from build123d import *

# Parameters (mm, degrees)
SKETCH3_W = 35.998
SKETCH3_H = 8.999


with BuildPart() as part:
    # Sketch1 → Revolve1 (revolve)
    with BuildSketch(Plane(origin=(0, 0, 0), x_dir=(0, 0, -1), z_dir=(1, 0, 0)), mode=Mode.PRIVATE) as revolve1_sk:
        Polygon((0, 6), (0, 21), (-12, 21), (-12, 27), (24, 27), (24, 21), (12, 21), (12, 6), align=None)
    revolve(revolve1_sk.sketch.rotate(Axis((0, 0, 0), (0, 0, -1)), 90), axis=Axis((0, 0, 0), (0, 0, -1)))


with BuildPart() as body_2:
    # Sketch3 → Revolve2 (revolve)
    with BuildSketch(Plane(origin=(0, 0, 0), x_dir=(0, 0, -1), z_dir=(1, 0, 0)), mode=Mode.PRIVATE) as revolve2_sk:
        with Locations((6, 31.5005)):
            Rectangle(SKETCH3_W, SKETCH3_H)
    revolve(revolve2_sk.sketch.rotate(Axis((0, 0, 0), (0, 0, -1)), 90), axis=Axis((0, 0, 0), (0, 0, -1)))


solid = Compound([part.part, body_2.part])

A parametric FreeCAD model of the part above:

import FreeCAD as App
import Part
import Sketcher
Q = App.Units.Quantity


def add_polygon(sketch, points):
    """Adds a closed chain of lines whose ends are joined by coincident constraints."""
    first, n = sketch.GeometryCount, len(points)
    for a, b in zip(points, points[1:] + points[:1]):
        sketch.addGeometry(Part.LineSegment(App.Vector(*a, 0), App.Vector(*b, 0)), False)
    for i in range(n):
        sketch.addConstraint(Sketcher.Constraint("Coincident", first + i, 2, first + (i + 1) % n, 1))

doc = App.newDocument("Part")
body = doc.addObject("PartDesign::Body", "Body")

sketch1 = body.newObject("Sketcher::SketchObject", "Sketch")
sketch1.AttachmentSupport = (doc.getObject("YZ_Plane"), [""])
sketch1.MapMode = "FlatFace"
add_polygon(sketch1, [(21, 0), (6, 0), (6, -12), (21, -12), (21, -24), (27, -24), (27, 12), (21, 12)])
sketch1.addConstraint(Sketcher.Constraint("Horizontal", 0))
sketch1.addConstraint(Sketcher.Constraint("Vertical", 1))
sketch1.addConstraint(Sketcher.Constraint("Horizontal", 2))
sketch1.addConstraint(Sketcher.Constraint("Vertical", 3))
sketch1.addConstraint(Sketcher.Constraint("Horizontal", 4))
sketch1.addConstraint(Sketcher.Constraint("Vertical", 5))
sketch1.addConstraint(Sketcher.Constraint("Horizontal", 6))
sketch1.addConstraint(Sketcher.Constraint("Vertical", 7))
sketch1.addConstraint(Sketcher.Constraint("Symmetric", 2, 2, 6, 2, -1))
sketch1.addConstraint(Sketcher.Constraint("PointOnObject", 0, 2, -1))
sketch1.addConstraint(Sketcher.Constraint("Equal", 1, 3))
sketch1.addConstraint(Sketcher.Constraint("DistanceX", 0, 2, 0, 1, Q("15 mm")))
sketch1.addConstraint(Sketcher.Constraint("DistanceX", 4, 1, 4, 2, Q("6 mm")))
sketch1.addConstraint(Sketcher.Constraint("DistanceY", 1, 2, 1, 1, Q("12 mm")))
sketch1.addConstraint(Sketcher.Constraint("DistanceX", -1, 1, 0, 2, Q("6 mm")))
revolution = body.newObject("PartDesign::Revolution", "Revolution")
revolution.Profile = sketch1
revolution.ReferenceAxis = (sketch1, ["V_Axis"])
revolution.Angle = 360
body2 = doc.addObject("PartDesign::Body", "Body001")

sketch2 = body2.newObject("Sketcher::SketchObject", "Sketch001")
sketch2.AttachmentSupport = (doc.getObject("YZ_Plane001"), [""])
sketch2.MapMode = "FlatFace"
add_polygon(sketch2, [(36, 12), (27, 12), (27, -24), (36, -24)])
sketch2.addConstraint(Sketcher.Constraint("Horizontal", 0))
sketch2.addConstraint(Sketcher.Constraint("Vertical", 1))
sketch2.addConstraint(Sketcher.Constraint("Horizontal", 2))
sketch2.addConstraint(Sketcher.Constraint("Vertical", 3))
sketch2.addConstraint(Sketcher.Constraint("DistanceX", -1, 1, 2, 2, Q("36 mm")))
sketch2.addConstraint(Sketcher.Constraint("DistanceX", 0, 2, 0, 1, Q("8.999 mm")))
sketch2.addConstraint(Sketcher.Constraint("DistanceY", 1, 2, 1, 1, Q("35.998 mm")))
sketch2.addConstraint(Sketcher.Constraint("DistanceY", -1, 1, 0, 2, Q("11.999 mm")))
revolution2 = body2.newObject("PartDesign::Revolution", "Revolution001")
revolution2.Profile = sketch2
revolution2.ReferenceAxis = (sketch2, ["V_Axis"])
revolution2.Angle = 360

doc.recompute()
